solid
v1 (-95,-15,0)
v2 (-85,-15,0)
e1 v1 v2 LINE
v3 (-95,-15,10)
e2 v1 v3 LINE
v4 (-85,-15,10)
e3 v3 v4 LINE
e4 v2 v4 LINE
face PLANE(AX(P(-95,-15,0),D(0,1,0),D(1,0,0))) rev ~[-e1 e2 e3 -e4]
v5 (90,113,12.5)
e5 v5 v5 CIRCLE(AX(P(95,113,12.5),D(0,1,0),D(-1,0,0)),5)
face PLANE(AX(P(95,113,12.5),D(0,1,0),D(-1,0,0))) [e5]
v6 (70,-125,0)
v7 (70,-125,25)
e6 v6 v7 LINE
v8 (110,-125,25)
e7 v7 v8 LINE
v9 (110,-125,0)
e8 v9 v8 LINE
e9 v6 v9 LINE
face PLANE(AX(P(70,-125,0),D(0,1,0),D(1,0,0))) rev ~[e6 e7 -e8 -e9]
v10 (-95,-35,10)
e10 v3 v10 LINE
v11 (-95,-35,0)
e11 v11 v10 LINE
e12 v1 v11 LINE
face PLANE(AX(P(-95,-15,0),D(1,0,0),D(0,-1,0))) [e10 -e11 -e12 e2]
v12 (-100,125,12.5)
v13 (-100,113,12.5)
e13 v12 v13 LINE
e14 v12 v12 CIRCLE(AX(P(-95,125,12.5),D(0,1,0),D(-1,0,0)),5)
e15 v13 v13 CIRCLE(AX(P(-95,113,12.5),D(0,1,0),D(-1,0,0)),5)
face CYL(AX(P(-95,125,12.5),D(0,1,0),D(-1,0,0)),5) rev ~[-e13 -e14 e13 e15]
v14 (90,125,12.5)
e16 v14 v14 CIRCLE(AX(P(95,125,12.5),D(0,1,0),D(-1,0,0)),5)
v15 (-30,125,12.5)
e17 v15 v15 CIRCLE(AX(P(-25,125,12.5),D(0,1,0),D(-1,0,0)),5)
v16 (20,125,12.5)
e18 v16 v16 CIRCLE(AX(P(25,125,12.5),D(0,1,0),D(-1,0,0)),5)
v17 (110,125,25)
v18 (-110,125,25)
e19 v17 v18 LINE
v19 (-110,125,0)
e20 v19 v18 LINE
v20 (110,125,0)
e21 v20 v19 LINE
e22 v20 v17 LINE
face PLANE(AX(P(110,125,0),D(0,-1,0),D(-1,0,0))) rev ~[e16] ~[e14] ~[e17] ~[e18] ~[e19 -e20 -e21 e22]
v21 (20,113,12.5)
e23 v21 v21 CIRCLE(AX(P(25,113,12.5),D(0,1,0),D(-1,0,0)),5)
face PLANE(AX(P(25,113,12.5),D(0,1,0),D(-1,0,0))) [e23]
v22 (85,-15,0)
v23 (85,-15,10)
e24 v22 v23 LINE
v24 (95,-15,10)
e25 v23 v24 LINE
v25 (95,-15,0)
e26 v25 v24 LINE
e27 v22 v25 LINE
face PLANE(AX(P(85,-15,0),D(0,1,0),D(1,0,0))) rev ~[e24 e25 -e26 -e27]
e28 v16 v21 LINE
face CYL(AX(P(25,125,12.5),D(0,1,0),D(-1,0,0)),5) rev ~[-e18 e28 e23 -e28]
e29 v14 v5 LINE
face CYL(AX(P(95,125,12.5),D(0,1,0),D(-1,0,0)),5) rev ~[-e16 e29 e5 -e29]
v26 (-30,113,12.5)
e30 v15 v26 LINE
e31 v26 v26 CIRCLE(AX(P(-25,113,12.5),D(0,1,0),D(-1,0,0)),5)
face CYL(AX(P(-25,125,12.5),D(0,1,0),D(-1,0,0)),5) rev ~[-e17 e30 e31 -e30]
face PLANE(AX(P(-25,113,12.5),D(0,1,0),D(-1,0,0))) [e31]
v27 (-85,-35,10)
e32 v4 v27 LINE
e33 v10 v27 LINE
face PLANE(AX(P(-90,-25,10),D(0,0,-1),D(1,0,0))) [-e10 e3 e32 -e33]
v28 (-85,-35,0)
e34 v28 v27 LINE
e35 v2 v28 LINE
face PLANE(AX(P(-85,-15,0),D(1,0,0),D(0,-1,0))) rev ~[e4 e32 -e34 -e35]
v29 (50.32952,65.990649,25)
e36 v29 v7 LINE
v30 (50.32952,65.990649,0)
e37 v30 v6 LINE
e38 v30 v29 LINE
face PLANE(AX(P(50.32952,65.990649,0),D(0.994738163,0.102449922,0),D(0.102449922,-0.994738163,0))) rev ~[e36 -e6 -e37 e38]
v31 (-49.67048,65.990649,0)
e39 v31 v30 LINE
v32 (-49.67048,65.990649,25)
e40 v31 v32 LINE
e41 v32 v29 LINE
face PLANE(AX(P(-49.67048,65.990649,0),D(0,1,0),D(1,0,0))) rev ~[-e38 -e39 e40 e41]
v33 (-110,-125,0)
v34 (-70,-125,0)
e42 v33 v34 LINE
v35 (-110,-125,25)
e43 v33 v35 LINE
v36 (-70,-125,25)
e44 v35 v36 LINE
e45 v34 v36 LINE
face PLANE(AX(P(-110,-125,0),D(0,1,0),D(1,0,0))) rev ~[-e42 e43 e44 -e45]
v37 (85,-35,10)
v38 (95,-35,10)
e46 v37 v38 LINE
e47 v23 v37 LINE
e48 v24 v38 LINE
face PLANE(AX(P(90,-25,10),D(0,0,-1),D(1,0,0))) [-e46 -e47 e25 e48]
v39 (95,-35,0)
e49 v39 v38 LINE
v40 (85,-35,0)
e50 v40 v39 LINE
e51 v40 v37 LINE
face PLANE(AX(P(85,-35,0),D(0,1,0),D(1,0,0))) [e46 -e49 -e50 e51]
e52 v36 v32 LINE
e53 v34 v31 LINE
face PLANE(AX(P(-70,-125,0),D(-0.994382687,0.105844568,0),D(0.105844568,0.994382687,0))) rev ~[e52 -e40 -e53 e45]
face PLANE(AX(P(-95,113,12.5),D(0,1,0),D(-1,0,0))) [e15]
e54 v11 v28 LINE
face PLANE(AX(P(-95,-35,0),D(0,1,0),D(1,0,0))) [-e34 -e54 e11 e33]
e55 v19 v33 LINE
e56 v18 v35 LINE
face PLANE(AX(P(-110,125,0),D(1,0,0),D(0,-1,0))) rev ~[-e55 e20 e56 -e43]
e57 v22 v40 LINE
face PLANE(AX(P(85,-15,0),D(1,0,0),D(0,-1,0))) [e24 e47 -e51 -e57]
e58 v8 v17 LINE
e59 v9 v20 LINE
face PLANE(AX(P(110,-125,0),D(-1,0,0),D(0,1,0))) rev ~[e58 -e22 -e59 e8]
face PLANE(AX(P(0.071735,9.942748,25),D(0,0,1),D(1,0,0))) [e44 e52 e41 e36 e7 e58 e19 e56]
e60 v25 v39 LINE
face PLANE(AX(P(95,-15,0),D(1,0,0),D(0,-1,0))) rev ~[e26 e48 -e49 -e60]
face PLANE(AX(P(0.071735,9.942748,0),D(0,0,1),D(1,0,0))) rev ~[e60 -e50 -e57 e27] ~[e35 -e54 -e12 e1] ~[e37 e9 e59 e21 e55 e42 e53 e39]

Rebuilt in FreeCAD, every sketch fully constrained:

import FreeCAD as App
import Part
import Sketcher

doc = App.newDocument("Part")
body = doc.addObject("PartDesign::Body", "Body")

sketch1 = body.newObject("Sketcher::SketchObject", "Sketch")
sketch1.AttachmentSupport = (doc.getObject("XY_Plane"), [""])
sketch1.MapMode = "FlatFace"
sketch1.addGeometry([
    Part.LineSegment(App.Vector(110, -125, 0), App.Vector(110, 125, 0)),
    Part.LineSegment(App.Vector(110, 125, 0), App.Vector(-110, 125, 0)),
    Part.LineSegment(App.Vector(-110, 125, 0), App.Vector(-110, -125, 0)),
    Part.LineSegment(App.Vector(-110, -125, 0), App.Vector(-70, -125, 0)),
    Part.LineSegment(App.Vector(-70, -125, 0), App.Vector(-50, 66, 0)),
    Part.LineSegment(App.Vector(-50, 66, 0), App.Vector(50, 66, 0)),
    Part.LineSegment(App.Vector(50, 66, 0), App.Vector(70, -125, 0)),
    Part.LineSegment(App.Vector(70, -125, 0), App.Vector(110, -125, 0)),
], False)
sketch1.addConstraint([
    Sketcher.Constraint("Coincident", 0, 2, 1, 1),
    Sketcher.Constraint("Coincident", 1, 2, 2, 1),
    Sketcher.Constraint("Coincident", 2, 2, 3, 1),
    Sketcher.Constraint("Coincident", 3, 2, 4, 1),
    Sketcher.Constraint("Coincident", 4, 2, 5, 1),
    Sketcher.Constraint("Coincident", 5, 2, 6, 1),
    Sketcher.Constraint("Coincident", 6, 2, 7, 1),
    Sketcher.Constraint("Coincident", 7, 2, 0, 1),
    Sketcher.Constraint("Vertical", 0),
    Sketcher.Constraint("Horizontal", 1),
    Sketcher.Constraint("Vertical", 2),
    Sketcher.Constraint("Horizontal", 3),
    Sketcher.Constraint("Horizontal", 5),
    Sketcher.Constraint("Horizontal", 7),
    Sketcher.Constraint("Symmetric", 0, 2, 2, 2, -1, 1),
    Sketcher.Constraint("Symmetric", 3, 2, 6, 2, -2),
    Sketcher.Constraint("DistanceX", 1, 2, 1, 1, 220.0),
    Sketcher.Constraint("DistanceX", 3, 1, 3, 2, 40.0),
    Sketcher.Constraint("DistanceX", 5, 1, 5, 2, 100.0),
    Sketcher.Constraint("DistanceY", 0, 1, 0, 2, 250.0),
    Sketcher.Constraint("DistanceX", 4, 2, -1, 1, 49.67048),
    Sketcher.Constraint("DistanceY", -1, 1, 4, 2, 65.990649),
])
pad1 = body.newObject("PartDesign::Pad", "Pad")
pad1.Profile = sketch1
pad1.Length = 25

sketch2 = body.newObject("Sketcher::SketchObject", "Sketch001")
sketch2.AttachmentSupport = (doc.getObject("XZ_Plane"), [""])
sketch2.MapMode = "FlatFace"
sketch2.AttachmentOffset = App.Placement(App.Vector(0, 0, -125), App.Rotation())
sketch2.addGeometry([
    Part.Circle(App.Vector(-95, 12, 0), App.Vector(0, 0, 1), 5),
    Part.Circle(App.Vector(-25, 12, 0), App.Vector(0, 0, 1), 5),
    Part.Circle(App.Vector(25, 12, 0), App.Vector(0, 0, 1), 5),
    Part.Circle(App.Vector(95, 12, 0), App.Vector(0, 0, 1), 5),
], False)
sketch2.addConstraint([
    Sketcher.Constraint("Equal", 0, 1),
    Sketcher.Constraint("Equal", 1, 2),
    Sketcher.Constraint("Equal", 2, 3),
    Sketcher.Constraint("Symmetric", 1, 3, 2, 3, -2),
    Sketcher.Constraint("Symmetric", 0, 3, 3, 3, -2),
    Sketcher.Constraint("Horizontal", 0, 3, 1, 3),
    Sketcher.Constraint("Diameter", 0, 10.0),
    Sketcher.Constraint("DistanceX", 0, 3, -1, 1, 95.0),
    Sketcher.Constraint("DistanceX", 1, 3, -1, 1, 25.0),
    Sketcher.Constraint("DistanceY", -1, 1, 0, 3, 12.5),
])
pocket1 = body.newObject("PartDesign::Pocket", "Pocket")
pocket1.Profile = sketch2
pocket1.Length = 12
pocket1.Reversed = True

sketch3 = body.newObject("Sketcher::SketchObject", "Sketch002")
sketch3.AttachmentSupport = (doc.getObject("XY_Plane"), [""])
sketch3.MapMode = "FlatFace"
sketch3.addGeometry([
    Part.LineSegment(App.Vector(-95, -35, 0), App.Vector(-95, -15, 0)),
    Part.LineSegment(App.Vector(-95, -15, 0), App.Vector(-85, -15, 0)),
    Part.LineSegment(App.Vector(-85, -15, 0), App.Vector(-85, -35, 0)),
    Part.LineSegment(App.Vector(-85, -35, 0), App.Vector(-95, -35, 0)),
    Part.LineSegment(App.Vector(85, -35, 0), App.Vector(85, -15, 0)),
    Part.LineSegment(App.Vector(85, -15, 0), App.Vector(95, -15, 0)),
    Part.LineSegment(App.Vector(95, -15, 0), App.Vector(95, -35, 0)),
    Part.LineSegment(App.Vector(95, -35, 0), App.Vector(85, -35, 0)),
], False)
sketch3.addConstraint([
    Sketcher.Constraint("Coincident", 0, 2, 1, 1),
    Sketcher.Constraint("Coincident", 1, 2, 2, 1),
    Sketcher.Constraint("Coincident", 2, 2, 3, 1),
    Sketcher.Constraint("Coincident", 3, 2, 0, 1),
    Sketcher.Constraint("Coincident", 4, 2, 5, 1),
    Sketcher.Constraint("Coincident", 5, 2, 6, 1),
    Sketcher.Constraint("Coincident", 6, 2, 7, 1),
    Sketcher.Constraint("Coincident", 7, 2, 4, 1),
    Sketcher.Constraint("Vertical", 0),
    Sketcher.Constraint("Horizontal", 1),
    Sketcher.Constraint("Vertical", 2),
    Sketcher.Constraint("Horizontal", 3),
    Sketcher.Constraint("Vertical", 4),
    Sketcher.Constraint("Horizontal", 5),
    Sketcher.Constraint("Vertical", 6),
    Sketcher.Constraint("Horizontal", 7),
    Sketcher.Constraint("Symmetric", 1, 2, 4, 2, -2),
    Sketcher.Constraint("Symmetric", 3, 2, 6, 2, -2),
    Sketcher.Constraint("DistanceX", 1, 1, 1, 2, 10.0),
    Sketcher.Constraint("DistanceY", 0, 1, 0, 2, 20.0),
    Sketcher.Constraint("DistanceX", 0, 2, -1, 1, 95.0),
    Sketcher.Constraint("DistanceY", 0, 2, -1, 1, 15.0),
])
pocket2 = body.newObject("PartDesign::Pocket", "Pocket001")
pocket2.Profile = sketch3
pocket2.Length = 10
pocket2.Reversed = True

doc.recompute()
